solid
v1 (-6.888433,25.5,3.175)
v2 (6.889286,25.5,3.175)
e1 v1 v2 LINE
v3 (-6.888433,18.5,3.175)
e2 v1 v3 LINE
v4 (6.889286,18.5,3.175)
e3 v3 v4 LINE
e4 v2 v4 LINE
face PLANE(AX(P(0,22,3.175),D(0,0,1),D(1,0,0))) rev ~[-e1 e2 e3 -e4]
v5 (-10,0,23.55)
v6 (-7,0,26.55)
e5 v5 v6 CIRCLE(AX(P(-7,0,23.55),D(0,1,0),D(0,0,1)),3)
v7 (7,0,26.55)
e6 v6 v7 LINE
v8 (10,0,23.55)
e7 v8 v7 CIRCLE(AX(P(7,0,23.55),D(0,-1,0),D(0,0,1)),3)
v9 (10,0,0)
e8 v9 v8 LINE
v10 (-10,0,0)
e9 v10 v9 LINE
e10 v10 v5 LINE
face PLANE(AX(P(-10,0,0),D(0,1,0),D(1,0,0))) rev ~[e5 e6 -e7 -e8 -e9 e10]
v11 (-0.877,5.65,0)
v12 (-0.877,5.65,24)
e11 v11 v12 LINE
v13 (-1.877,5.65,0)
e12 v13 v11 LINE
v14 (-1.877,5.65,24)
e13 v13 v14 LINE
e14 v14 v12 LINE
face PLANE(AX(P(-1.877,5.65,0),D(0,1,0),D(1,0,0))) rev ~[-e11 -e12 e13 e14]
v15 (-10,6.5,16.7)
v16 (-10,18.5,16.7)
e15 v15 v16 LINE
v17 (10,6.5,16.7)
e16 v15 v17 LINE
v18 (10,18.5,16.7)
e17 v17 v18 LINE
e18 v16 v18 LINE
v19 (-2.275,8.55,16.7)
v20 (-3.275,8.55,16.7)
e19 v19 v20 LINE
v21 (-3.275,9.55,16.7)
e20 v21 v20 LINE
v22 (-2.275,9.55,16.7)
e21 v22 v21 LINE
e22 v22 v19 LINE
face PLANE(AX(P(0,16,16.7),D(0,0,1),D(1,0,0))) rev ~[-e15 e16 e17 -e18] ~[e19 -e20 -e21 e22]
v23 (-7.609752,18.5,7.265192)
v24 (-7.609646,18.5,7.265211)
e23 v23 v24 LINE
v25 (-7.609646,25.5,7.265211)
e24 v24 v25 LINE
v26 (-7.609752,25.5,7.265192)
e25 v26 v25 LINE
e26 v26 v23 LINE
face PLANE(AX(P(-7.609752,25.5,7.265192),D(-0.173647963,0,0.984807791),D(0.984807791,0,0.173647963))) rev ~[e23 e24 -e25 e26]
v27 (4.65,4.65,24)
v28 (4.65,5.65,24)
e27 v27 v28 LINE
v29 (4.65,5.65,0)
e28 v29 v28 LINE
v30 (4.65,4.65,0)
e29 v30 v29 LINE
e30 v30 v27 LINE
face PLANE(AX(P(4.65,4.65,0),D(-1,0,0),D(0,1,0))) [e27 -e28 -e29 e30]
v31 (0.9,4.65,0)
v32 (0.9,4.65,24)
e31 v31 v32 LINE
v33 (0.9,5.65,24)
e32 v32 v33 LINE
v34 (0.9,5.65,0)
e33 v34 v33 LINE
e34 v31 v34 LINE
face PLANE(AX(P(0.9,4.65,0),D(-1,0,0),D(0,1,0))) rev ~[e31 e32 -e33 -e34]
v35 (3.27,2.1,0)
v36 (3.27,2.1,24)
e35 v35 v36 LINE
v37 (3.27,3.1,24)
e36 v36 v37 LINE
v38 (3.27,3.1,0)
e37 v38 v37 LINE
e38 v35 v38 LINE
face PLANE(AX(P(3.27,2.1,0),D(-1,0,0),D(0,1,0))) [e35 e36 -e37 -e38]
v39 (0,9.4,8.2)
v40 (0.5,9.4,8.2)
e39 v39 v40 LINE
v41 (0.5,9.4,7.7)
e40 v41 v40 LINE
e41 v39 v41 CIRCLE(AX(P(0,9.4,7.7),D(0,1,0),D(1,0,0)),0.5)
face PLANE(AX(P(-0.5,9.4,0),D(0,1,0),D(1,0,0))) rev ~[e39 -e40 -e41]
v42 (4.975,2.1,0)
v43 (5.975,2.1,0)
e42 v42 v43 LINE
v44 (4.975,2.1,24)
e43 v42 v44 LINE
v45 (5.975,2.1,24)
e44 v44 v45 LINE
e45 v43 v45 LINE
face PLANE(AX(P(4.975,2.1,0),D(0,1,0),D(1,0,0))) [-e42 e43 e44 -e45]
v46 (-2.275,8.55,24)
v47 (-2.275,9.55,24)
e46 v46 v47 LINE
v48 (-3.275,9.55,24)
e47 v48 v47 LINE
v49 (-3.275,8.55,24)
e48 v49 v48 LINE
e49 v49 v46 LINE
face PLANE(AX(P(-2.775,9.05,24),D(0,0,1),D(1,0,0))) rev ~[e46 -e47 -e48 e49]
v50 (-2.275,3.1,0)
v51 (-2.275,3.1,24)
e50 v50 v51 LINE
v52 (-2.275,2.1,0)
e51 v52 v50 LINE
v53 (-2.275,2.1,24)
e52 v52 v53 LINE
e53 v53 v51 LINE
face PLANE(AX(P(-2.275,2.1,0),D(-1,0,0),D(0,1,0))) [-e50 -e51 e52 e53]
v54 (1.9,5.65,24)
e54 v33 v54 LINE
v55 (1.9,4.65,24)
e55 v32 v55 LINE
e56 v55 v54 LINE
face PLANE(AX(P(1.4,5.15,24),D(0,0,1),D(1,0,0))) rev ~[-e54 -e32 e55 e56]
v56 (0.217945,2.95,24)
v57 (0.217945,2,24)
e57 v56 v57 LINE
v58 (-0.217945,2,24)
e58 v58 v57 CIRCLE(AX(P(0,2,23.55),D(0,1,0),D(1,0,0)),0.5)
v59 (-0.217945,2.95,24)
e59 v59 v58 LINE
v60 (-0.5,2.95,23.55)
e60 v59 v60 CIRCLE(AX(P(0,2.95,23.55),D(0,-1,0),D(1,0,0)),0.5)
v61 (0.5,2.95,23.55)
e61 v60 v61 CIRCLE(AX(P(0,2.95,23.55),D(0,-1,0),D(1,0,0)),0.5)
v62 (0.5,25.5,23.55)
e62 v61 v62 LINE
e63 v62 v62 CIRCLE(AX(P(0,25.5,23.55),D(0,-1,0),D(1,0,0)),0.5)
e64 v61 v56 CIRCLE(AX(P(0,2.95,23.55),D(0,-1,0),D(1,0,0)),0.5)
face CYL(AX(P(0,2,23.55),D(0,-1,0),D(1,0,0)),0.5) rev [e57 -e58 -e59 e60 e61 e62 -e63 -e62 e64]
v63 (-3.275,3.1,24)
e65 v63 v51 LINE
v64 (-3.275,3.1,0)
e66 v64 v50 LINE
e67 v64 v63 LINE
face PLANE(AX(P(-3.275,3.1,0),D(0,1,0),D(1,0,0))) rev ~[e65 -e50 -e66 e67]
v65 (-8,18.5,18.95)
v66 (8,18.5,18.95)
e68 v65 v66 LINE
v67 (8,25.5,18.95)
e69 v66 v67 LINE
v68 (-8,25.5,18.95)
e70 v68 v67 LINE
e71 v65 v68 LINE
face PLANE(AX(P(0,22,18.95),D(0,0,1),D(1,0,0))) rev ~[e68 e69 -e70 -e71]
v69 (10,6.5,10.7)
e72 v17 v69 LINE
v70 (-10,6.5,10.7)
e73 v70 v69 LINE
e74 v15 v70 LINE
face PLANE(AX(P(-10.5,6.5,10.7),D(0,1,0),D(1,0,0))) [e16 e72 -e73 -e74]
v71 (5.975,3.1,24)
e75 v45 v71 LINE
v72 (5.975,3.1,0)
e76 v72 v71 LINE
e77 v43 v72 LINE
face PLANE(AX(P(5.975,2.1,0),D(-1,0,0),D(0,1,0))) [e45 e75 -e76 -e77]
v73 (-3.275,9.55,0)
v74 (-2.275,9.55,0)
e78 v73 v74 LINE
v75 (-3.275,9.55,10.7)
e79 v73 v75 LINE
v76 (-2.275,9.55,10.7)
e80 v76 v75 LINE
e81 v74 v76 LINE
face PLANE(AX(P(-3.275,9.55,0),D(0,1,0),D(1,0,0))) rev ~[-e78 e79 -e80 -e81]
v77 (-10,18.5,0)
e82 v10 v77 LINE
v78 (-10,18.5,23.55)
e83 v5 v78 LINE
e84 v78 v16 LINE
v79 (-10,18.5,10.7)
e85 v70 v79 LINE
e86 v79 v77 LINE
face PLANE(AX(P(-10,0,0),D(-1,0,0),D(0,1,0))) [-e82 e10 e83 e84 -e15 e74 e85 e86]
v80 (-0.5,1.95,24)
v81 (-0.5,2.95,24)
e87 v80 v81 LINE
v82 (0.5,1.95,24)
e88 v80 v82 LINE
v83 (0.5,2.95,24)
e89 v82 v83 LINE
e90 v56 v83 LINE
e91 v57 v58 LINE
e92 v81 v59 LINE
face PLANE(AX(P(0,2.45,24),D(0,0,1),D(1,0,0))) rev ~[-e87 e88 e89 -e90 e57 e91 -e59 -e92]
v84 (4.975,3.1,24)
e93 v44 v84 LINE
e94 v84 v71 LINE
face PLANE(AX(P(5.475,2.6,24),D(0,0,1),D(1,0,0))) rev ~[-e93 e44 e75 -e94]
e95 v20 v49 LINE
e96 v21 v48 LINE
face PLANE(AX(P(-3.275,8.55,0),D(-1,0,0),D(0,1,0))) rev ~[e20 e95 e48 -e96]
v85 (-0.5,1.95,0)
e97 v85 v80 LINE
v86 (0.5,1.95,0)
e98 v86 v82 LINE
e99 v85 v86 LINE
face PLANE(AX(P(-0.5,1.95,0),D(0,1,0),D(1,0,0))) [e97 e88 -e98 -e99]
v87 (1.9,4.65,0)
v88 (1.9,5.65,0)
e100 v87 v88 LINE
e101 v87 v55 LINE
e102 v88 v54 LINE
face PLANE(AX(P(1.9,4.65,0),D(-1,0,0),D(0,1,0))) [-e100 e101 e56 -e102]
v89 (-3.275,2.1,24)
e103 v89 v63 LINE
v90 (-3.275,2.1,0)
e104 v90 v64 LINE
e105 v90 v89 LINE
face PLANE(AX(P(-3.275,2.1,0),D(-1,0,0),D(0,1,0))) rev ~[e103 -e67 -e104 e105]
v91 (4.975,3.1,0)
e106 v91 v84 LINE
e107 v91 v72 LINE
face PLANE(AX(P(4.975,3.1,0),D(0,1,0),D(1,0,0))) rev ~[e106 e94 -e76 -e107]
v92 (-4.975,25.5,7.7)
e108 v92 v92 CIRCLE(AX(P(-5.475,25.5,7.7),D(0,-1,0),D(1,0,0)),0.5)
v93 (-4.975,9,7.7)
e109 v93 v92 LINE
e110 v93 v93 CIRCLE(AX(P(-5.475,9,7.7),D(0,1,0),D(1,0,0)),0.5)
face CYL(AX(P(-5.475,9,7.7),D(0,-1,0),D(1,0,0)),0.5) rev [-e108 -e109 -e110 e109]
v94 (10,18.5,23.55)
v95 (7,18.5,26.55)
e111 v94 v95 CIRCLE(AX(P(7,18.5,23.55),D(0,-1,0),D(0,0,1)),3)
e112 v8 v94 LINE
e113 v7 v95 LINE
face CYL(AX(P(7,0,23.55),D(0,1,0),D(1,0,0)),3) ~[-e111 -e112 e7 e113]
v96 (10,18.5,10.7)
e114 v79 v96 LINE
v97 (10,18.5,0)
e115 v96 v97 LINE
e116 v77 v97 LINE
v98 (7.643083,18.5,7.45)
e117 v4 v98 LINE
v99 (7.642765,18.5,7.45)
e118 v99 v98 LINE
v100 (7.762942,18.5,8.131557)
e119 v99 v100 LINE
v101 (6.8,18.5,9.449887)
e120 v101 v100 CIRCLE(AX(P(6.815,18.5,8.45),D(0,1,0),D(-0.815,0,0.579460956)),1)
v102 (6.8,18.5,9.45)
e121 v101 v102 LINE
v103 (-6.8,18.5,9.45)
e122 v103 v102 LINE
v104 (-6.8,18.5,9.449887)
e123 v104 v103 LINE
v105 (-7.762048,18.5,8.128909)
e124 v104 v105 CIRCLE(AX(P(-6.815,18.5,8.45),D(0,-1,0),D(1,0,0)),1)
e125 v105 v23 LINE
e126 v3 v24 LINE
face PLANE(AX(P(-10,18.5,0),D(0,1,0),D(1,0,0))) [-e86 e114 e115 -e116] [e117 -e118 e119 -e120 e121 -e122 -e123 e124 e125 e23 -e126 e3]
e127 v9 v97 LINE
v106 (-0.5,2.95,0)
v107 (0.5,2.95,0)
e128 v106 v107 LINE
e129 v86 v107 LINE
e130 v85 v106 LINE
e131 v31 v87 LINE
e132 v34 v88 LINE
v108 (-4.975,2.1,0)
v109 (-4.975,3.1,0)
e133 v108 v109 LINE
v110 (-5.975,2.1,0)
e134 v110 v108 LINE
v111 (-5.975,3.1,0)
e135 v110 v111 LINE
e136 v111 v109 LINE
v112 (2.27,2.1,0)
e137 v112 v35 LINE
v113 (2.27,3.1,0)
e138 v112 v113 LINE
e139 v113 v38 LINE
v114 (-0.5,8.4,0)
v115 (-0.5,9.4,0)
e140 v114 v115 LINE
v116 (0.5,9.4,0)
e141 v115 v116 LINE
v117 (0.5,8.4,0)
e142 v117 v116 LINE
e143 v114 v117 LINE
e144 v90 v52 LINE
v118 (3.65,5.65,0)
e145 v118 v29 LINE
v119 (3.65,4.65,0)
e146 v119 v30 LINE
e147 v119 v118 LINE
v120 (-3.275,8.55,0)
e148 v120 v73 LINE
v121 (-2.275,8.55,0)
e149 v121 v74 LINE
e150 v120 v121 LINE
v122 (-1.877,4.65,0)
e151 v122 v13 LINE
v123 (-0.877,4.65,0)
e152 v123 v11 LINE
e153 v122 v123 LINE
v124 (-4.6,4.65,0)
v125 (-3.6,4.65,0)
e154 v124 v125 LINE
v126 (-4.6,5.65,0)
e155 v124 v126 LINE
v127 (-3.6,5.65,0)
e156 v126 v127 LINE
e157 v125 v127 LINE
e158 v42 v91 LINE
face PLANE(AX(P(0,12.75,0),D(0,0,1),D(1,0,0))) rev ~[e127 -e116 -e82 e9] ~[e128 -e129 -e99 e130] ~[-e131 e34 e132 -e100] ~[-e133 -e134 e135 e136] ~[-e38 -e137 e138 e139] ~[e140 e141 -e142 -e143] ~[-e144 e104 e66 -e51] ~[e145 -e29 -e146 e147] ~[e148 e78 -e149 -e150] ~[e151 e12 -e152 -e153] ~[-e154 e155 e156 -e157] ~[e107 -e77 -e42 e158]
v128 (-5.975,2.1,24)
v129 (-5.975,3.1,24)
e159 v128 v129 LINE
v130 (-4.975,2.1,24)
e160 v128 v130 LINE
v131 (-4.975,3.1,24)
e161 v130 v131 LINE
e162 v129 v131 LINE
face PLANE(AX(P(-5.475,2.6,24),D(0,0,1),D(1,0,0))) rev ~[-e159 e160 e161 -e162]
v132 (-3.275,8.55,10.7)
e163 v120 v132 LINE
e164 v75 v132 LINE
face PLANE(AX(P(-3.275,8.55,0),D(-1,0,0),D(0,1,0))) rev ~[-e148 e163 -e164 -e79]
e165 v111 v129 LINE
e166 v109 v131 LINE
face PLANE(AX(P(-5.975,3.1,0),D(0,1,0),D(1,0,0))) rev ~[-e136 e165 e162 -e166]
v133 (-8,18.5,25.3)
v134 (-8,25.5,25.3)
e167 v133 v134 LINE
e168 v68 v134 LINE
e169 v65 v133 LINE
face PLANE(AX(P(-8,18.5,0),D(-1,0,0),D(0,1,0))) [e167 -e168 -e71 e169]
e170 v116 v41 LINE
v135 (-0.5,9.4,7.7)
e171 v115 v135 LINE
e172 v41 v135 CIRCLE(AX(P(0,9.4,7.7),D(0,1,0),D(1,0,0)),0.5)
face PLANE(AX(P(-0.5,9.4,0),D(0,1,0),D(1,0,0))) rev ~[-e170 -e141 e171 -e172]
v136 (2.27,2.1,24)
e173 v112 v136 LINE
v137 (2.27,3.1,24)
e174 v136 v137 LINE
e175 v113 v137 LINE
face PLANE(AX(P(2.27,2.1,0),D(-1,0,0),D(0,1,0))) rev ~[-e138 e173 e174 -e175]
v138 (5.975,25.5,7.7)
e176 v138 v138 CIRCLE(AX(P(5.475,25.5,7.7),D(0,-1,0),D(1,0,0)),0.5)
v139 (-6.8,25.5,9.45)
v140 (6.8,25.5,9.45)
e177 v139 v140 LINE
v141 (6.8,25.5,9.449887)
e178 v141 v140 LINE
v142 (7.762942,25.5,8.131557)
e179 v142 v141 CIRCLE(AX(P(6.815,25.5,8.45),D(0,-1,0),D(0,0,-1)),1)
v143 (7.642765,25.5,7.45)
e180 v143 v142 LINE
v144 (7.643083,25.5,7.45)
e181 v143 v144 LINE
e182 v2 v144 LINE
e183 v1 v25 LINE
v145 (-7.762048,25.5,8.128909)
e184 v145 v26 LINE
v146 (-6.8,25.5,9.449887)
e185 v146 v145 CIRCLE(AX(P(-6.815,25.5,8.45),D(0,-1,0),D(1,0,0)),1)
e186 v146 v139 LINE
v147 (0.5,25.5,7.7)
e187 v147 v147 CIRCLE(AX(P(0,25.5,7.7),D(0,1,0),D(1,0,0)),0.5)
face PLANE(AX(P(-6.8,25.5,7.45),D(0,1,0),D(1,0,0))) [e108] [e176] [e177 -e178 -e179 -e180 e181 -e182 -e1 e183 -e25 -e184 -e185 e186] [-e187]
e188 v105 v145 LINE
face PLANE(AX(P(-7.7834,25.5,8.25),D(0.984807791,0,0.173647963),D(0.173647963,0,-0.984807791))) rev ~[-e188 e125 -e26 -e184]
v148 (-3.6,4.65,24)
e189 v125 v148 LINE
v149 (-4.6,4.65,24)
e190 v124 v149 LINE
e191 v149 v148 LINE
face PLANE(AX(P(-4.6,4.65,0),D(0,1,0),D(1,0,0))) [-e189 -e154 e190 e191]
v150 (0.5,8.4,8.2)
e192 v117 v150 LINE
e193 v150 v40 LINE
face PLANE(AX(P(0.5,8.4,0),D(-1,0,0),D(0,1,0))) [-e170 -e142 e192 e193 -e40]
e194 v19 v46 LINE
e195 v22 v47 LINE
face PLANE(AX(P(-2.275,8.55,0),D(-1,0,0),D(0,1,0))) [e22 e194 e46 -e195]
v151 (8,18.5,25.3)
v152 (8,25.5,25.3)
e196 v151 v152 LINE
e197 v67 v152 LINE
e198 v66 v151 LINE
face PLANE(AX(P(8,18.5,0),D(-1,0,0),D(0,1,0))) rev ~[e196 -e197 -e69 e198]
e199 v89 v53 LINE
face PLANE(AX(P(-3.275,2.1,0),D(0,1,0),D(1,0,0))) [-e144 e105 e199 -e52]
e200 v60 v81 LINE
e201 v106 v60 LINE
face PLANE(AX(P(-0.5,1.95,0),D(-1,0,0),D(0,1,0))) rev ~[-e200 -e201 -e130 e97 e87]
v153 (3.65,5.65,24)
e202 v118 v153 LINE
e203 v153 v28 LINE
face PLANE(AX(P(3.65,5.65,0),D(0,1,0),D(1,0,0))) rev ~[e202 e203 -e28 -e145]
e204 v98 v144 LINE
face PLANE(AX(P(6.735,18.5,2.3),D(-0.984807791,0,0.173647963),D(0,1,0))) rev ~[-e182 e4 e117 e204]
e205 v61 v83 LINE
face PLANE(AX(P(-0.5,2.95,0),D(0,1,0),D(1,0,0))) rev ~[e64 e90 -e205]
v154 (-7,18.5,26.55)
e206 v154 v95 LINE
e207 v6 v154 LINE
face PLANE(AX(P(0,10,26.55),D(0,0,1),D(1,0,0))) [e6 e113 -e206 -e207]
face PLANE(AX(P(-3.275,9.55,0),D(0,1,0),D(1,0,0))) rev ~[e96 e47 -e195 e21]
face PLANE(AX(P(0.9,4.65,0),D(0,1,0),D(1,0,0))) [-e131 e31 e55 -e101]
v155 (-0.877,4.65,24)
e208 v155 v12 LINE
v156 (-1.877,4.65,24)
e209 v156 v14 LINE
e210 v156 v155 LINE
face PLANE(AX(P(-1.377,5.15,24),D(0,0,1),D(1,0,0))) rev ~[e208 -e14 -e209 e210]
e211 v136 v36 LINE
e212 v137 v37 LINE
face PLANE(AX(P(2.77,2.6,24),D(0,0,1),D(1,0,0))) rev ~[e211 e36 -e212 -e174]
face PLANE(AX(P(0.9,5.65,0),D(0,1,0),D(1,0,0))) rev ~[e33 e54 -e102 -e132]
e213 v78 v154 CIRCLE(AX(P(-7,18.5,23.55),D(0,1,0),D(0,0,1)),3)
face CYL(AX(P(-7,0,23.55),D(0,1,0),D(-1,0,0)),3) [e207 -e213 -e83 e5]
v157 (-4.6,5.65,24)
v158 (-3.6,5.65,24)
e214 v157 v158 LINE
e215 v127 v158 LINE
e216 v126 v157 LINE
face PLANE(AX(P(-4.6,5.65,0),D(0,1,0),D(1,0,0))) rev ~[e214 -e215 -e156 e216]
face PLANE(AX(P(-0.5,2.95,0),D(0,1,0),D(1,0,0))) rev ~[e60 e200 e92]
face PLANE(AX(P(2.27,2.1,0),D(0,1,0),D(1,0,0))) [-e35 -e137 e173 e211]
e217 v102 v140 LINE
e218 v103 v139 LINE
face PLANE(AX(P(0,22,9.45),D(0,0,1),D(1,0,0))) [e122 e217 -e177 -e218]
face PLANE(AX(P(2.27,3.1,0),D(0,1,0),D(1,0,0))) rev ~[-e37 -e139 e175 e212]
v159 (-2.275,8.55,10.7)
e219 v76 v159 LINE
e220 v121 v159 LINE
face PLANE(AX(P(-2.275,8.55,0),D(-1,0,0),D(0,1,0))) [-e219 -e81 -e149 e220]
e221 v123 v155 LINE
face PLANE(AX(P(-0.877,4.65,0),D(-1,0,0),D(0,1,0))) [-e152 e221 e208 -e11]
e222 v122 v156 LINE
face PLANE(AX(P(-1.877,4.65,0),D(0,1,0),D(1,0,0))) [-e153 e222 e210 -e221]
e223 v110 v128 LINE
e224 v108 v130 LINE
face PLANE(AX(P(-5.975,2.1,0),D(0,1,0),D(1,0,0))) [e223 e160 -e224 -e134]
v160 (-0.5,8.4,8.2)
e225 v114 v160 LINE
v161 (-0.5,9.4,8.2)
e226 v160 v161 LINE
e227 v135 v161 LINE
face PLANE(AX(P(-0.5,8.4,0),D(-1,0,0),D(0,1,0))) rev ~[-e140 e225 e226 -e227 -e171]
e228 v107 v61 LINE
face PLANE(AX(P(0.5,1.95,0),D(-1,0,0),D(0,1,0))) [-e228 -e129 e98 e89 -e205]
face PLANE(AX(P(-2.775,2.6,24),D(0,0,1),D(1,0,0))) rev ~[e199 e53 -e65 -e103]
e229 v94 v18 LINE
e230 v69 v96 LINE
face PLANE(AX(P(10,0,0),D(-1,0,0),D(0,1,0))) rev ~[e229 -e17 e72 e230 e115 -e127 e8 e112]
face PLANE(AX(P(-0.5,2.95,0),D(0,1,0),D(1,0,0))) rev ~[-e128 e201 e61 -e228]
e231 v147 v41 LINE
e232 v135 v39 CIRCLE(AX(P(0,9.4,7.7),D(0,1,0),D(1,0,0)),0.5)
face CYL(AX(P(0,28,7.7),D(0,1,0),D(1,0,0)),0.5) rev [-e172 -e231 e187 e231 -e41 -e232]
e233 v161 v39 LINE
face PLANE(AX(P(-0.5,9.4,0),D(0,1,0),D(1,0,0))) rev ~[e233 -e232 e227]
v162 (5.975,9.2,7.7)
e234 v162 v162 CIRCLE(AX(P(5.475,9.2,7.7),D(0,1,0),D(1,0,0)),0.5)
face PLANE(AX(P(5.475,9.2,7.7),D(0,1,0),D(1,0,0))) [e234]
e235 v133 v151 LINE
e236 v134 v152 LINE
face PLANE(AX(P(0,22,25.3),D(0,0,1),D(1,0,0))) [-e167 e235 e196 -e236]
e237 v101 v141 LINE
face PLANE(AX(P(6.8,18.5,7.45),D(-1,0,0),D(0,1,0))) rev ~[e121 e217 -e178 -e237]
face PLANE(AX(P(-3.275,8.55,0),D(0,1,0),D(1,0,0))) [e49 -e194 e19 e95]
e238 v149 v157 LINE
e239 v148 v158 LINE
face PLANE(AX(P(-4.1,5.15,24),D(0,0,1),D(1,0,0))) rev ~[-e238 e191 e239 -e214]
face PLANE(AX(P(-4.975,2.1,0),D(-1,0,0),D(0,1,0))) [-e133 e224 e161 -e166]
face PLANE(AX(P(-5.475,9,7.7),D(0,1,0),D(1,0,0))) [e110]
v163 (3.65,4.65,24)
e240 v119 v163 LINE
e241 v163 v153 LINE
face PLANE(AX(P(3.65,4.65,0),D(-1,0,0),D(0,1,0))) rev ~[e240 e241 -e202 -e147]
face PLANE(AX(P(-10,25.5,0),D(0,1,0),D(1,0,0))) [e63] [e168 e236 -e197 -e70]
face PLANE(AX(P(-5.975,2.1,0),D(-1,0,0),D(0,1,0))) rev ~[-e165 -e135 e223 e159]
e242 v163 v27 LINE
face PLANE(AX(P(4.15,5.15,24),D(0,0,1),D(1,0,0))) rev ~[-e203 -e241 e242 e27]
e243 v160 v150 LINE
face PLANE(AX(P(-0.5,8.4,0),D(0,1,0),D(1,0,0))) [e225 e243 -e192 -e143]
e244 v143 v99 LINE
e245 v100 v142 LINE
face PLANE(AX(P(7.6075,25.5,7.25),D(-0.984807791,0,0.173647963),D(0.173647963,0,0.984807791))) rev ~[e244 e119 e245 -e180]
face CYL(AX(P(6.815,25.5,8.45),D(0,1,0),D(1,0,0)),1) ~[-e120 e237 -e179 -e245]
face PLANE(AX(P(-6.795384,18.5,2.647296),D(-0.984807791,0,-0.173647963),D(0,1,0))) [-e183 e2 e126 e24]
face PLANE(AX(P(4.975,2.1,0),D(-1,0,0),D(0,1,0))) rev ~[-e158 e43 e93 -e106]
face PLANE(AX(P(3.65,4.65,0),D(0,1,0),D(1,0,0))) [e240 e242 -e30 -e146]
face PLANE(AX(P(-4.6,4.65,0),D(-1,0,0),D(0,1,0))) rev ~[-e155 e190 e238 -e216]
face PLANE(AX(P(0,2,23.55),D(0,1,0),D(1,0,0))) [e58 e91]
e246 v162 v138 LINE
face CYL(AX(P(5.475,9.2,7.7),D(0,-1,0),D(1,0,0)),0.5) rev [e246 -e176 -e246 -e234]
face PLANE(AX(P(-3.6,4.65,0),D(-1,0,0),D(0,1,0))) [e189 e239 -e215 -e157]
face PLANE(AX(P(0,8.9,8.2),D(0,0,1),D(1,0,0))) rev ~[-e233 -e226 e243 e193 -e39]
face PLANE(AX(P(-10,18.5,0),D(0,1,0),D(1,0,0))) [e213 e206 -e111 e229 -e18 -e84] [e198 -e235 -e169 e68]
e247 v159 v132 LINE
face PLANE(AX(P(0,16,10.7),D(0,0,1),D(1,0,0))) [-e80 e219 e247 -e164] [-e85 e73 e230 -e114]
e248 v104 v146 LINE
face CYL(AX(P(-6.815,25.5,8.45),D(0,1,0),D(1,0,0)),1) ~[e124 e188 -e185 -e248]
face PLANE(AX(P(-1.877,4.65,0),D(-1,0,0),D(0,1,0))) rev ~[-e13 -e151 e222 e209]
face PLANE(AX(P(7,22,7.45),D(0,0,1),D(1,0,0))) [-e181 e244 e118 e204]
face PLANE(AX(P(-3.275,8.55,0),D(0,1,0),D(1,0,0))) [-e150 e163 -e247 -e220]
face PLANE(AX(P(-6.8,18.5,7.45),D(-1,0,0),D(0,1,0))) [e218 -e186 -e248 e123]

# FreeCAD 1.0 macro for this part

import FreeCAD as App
import Part
import Sketcher
from FreeCAD import Vector
Q = App.Units.Quantity


def edges_at(feature, points):
    """Names of the edges that pass closest to the given points."""
    edges = feature.Shape.Edges
    near = lambda p: min(range(len(edges)), key=lambda i: edges[i].distToShape(Part.Vertex(*p))[0])
    return sorted({f"Edge{near(p) + 1}" for p in points})


def add_polygon(sketch, points):
    """Adds a closed chain of lines whose ends are joined by coincident constraints."""
    first, n = sketch.GeometryCount, len(points)
    for a, b in zip(points, points[1:] + points[:1]):
        sketch.addGeometry(Part.LineSegment(App.Vector(*a, 0), App.Vector(*b, 0)), False)
    for i in range(n):
        sketch.addConstraint(Sketcher.Constraint("Coincident", first + i, 2, first + (i + 1) % n, 1))

doc = App.newDocument("Part")
body = doc.addObject("PartDesign::Body", "Body")

sketch1 = body.newObject("Sketcher::SketchObject", "Sketch")
sketch1.AttachmentSupport = (doc.getObject("XY_Plane"), [""])
sketch1.MapMode = "FlatFace"
add_polygon(sketch1, [(-10, 25.5), (-10, 0), (10, 0), (10, 25.5)])
sketch1.addConstraint([
    Sketcher.Constraint("Vertical", 0),
    Sketcher.Constraint("Horizontal", 1),
    Sketcher.Constraint("Vertical", 2),
    Sketcher.Constraint("Horizontal", 3),
    Sketcher.Constraint("Symmetric", 0, 2, 1, 2, -1, 1),
    Sketcher.Constraint("DistanceX", 1, 1, 1, 2, Q("20 mm")),
    Sketcher.Constraint("DistanceY", 0, 2, 0, 1, Q("25.5 mm")),
])
pad1 = body.newObject("PartDesign::Pad", "Pad")
pad1.Profile = sketch1
pad1.Length = 28.42

sketch2 = body.newObject("Sketcher::SketchObject", "Sketch001")
sketch2.AttachmentSupport = (doc.getObject("XY_Plane"), [""])
sketch2.MapMode = "FlatFace"
add_polygon(sketch2, [(-10, 25.5), (-10, 18.5), (-8, 18.5), (-8, 25.5)])
sketch2.addConstraint([
    Sketcher.Constraint("Vertical", 0),
    Sketcher.Constraint("Horizontal", 1),
    Sketcher.Constraint("Vertical", 2),
    Sketcher.Constraint("Horizontal", 3),
    Sketcher.Constraint("DistanceX", 1, 1, 1, 2, Q("2 mm")),
    Sketcher.Constraint("DistanceY", 0, 2, 0, 1, Q("7 mm")),
    Sketcher.Constraint("DistanceX", 0, 2, -1, 1, Q("10 mm")),
    Sketcher.Constraint("DistanceY", -1, 1, 0, 2, Q("18.5 mm")),
])
pocket1 = body.newObject("PartDesign::Pocket", "Pocket")
pocket1.Profile = sketch2
pocket1.Length = 31.5
pocket1.Reversed = True

sketch3 = body.newObject("Sketcher::SketchObject", "Sketch002")
sketch3.AttachmentSupport = (doc.getObject("XY_Plane"), [""])
sketch3.MapMode = "FlatFace"
add_polygon(sketch3, [(8, 26), (8, 18.5), (10, 18.5), (10, 26)])
sketch3.addConstraint([
    Sketcher.Constraint("Vertical", 0),
    Sketcher.Constraint("Horizontal", 1),
    Sketcher.Constraint("Vertical", 2),
    Sketcher.Constraint("Horizontal", 3),
    Sketcher.Constraint("DistanceX", 1, 1, 1, 2, Q("2 mm")),
    Sketcher.Constraint("DistanceY", 0, 2, 0, 1, Q("7.5 mm")),
    Sketcher.Constraint("DistanceX", -1, 1, 0, 2, Q("8 mm")),
    Sketcher.Constraint("DistanceY", -1, 1, 2, 2, Q("26 mm")),
])
pocket2 = body.newObject("PartDesign::Pocket", "Pocket001")
pocket2.Profile = sketch3
pocket2.Length = 31
pocket2.Reversed = True

sketch4 = body.newObject("Sketcher::SketchObject", "Sketch003")
sketch4.AttachmentSupport = (doc.getObject("XY_Plane"), [""])
sketch4.MapMode = "FlatFace"
sketch4.AttachmentOffset = App.Placement(Vector(0, 0, 10.7), App.Rotation())
add_polygon(sketch4, [(-10.5, 25.5), (-10.5, 6.5), (10.5, 6.5), (10.5, 25.5)])
sketch4.addConstraint([
    Sketcher.Constraint("Vertical", 0),
    Sketcher.Constraint("Horizontal", 1),
    Sketcher.Constraint("Vertical", 2),
    Sketcher.Constraint("Horizontal", 3),
    Sketcher.Constraint("DistanceX", 1, 1, 1, 2, Q("21 mm")),
    Sketcher.Constraint("DistanceY", 0, 2, 0, 1, Q("19 mm")),
    Sketcher.Constraint("DistanceX", 0, 2, -1, 1, Q("10.5 mm")),
    Sketcher.Constraint("DistanceY", -1, 1, 0, 2, Q("6.5 mm")),
])
pocket3 = body.newObject("PartDesign::Pocket", "Pocket002")
pocket3.Profile = sketch4
pocket3.Length = 6
pocket3.Reversed = True

sketch5 = body.newObject("Sketcher::SketchObject", "Sketch004")
sketch5.AttachmentSupport = (doc.getObject("XY_Plane"), [""])
sketch5.MapMode = "FlatFace"
sketch5.AttachmentOffset = App.Placement(Vector(0, 0, 9.45), App.Rotation())
add_polygon(sketch5, [(-9, 25.5), (-9, 18.5), (9, 18.5), (9, 25.5)])
sketch5.addConstraint([
    Sketcher.Constraint("Vertical", 0),
    Sketcher.Constraint("Horizontal", 1),
    Sketcher.Constraint("Vertical", 2),
    Sketcher.Constraint("Horizontal", 3),
    Sketcher.Constraint("DistanceX", 1, 1, 1, 2, Q("18 mm")),
    Sketcher.Constraint("DistanceY", 0, 2, 0, 1, Q("7 mm")),
    Sketcher.Constraint("DistanceX", 0, 2, -1, 1, Q("9 mm")),
    Sketcher.Constraint("DistanceY", -1, 1, 0, 2, Q("18.5 mm")),
])
pocket4 = body.newObject("PartDesign::Pocket", "Pocket003")
pocket4.Profile = sketch5
pocket4.Length = 9.5
pocket4.Reversed = True

sketch6 = body.newObject("Sketcher::SketchObject", "Sketch005")
sketch6.AttachmentSupport = (doc.getObject("XY_Plane"), [""])
sketch6.MapMode = "FlatFace"
add_polygon(sketch6, [(-11, 25.5), (-11, 18.5), (11, 18.5), (11, 25.5)])
sketch6.addConstraint([
    Sketcher.Constraint("Vertical", 0),
    Sketcher.Constraint("Horizontal", 1),
    Sketcher.Constraint("Vertical", 2),
    Sketcher.Constraint("Horizontal", 3),
    Sketcher.Constraint("DistanceX", 1, 1, 1, 2, Q("22 mm")),
    Sketcher.Constraint("DistanceY", 0, 2, 0, 1, Q("7 mm")),
    Sketcher.Constraint("DistanceX", 0, 2, -1, 1, Q("11 mm")),
    Sketcher.Constraint("DistanceY", -1, 1, 0, 2, Q("18.5 mm")),
])
pocket5 = body.newObject("PartDesign::Pocket", "Pocket004")
pocket5.Profile = sketch6
pocket5.Length = 3.175
pocket5.Reversed = True

sketch7 = body.newObject("Sketcher::SketchObject", "Sketch006")
sketch7.AttachmentSupport = (doc.getObject("XY_Plane"), [""])
sketch7.MapMode = "FlatFace"
sketch7.AttachmentOffset = App.Placement(Vector(0, 0, 25.3), App.Rotation())
add_polygon(sketch7, [(-11.5, 25.5), (-11.5, 18.5), (11.5, 18.5), (11.5, 25.5)])
sketch7.addConstraint([
    Sketcher.Constraint("Vertical", 0),
    Sketcher.Constraint("Horizontal", 1),
    Sketcher.Constraint("Vertical", 2),
    Sketcher.Constraint("Horizontal", 3),
    Sketcher.Constraint("DistanceX", 1, 1, 1, 2, Q("23 mm")),
    Sketcher.Constraint("DistanceY", 0, 2, 0, 1, Q("7 mm")),
    Sketcher.Constraint("DistanceX", 0, 2, -1, 1, Q("11.5 mm")),
    Sketcher.Constraint("DistanceY", -1, 1, 0, 2, Q("18.5 mm")),
])
pocket6 = body.newObject("PartDesign::Pocket", "Pocket005")
pocket6.Profile = sketch7
pocket6.Length = 3.2
pocket6.Reversed = True

sketch8 = body.newObject("Sketcher::SketchObject", "Sketch007")
sketch8.AttachmentSupport = (doc.getObject("XY_Plane"), [""])
sketch8.MapMode = "FlatFace"
add_polygon(sketch8, [(-0.5, 2.95), (-0.5, 1.95), (0.5, 1.95), (0.5, 2.95)])
sketch8.addConstraint([
    Sketcher.Constraint("Vertical", 0),
    Sketcher.Constraint("Horizontal", 1),
    Sketcher.Constraint("Vertical", 2),
    Sketcher.Constraint("Horizontal", 3),
    Sketcher.Constraint("Equal", 3, 0),
    Sketcher.Constraint("DistanceX", 1, 1, 1, 2, Q("1 mm")),
    Sketcher.Constraint("DistanceX", 0, 2, -1, 1, Q("0.5 mm")),
    Sketcher.Constraint("DistanceY", -1, 1, 0, 2, Q("1.95 mm")),
])
pocket7 = body.newObject("PartDesign::Pocket", "Pocket006")
pocket7.Profile = sketch8
pocket7.Length = 24
pocket7.Reversed = True

sketch9 = body.newObject("Sketcher::SketchObject", "Sketch008")
sketch9.AttachmentSupport = (doc.getObject("XY_Plane"), [""])
sketch9.MapMode = "FlatFace"
add_polygon(sketch9, [(2.27, 3.1), (2.27, 2.1), (3.27, 2.1), (3.27, 3.1)])
sketch9.addConstraint([
    Sketcher.Constraint("Vertical", 0),
    Sketcher.Constraint("Horizontal", 1),
    Sketcher.Constraint("Vertical", 2),
    Sketcher.Constraint("Horizontal", 3),
    Sketcher.Constraint("Equal", 3, 0),
    Sketcher.Constraint("DistanceX", 1, 1, 1, 2, Q("1 mm")),
    Sketcher.Constraint("DistanceY", -1, 1, 0, 2, Q("2.1 mm")),
    Sketcher.Constraint("DistanceX", -1, 1, 0, 2, Q("2.27 mm")),
])
pocket8 = body.newObject("PartDesign::Pocket", "Pocket007")
pocket8.Profile = sketch9
pocket8.Length = 24
pocket8.Reversed = True

sketch10 = body.newObject("Sketcher::SketchObject", "Sketch009")
sketch10.AttachmentSupport = (doc.getObject("XY_Plane"), [""])
sketch10.MapMode = "FlatFace"
sketch10.AttachmentOffset = App.Placement(Vector(0, 0, 26.55), App.Rotation())
add_polygon(sketch10, [(-10.5, 20), (-10.5, 0), (10.5, 0), (10.5, 20)])
sketch10.addConstraint([
    Sketcher.Constraint("Vertical", 0),
    Sketcher.Constraint("Horizontal", 1),
    Sketcher.Constraint("Vertical", 2),
    Sketcher.Constraint("Horizontal", 3),
    Sketcher.Constraint("Symmetric", 0, 2, 1, 2, -1, 1),
    Sketcher.Constraint("DistanceX", 1, 1, 1, 2, Q("21 mm")),
    Sketcher.Constraint("DistanceY", 0, 2, 0, 1, Q("20 mm")),
])
pocket9 = body.newObject("PartDesign::Pocket", "Pocket008")
pocket9.Profile = sketch10
pocket9.Length = 3
pocket9.Reversed = True

sketch11 = body.newObject("Sketcher::SketchObject", "Sketch010")
sketch11.AttachmentSupport = (doc.getObject("XY_Plane"), [""])
sketch11.MapMode = "FlatFace"
add_polygon(sketch11, [(-0.5, 9.4), (-0.5, 8.4), (0.5, 8.4), (0.5, 9.4)])
sketch11.addConstraint([
    Sketcher.Constraint("Vertical", 0),
    Sketcher.Constraint("Horizontal", 1),
    Sketcher.Constraint("Vertical", 2),
    Sketcher.Constraint("Horizontal", 3),
    Sketcher.Constraint("Equal", 3, 0),
    Sketcher.Constraint("DistanceX", 1, 1, 1, 2, Q("1 mm")),
    Sketcher.Constraint("DistanceX", 0, 2, -1, 1, Q("0.5 mm")),
    Sketcher.Constraint("DistanceY", -1, 1, 0, 2, Q("8.4 mm")),
])
pocket10 = body.newObject("PartDesign::Pocket", "Pocket009")
pocket10.Profile = sketch11
pocket10.Length = 8.2
pocket10.Reversed = True

sketch12 = body.newObject("Sketcher::SketchObject", "Sketch011")
sketch12.AttachmentSupport = (doc.getObject("XY_Plane"), [""])
sketch12.MapMode = "FlatFace"
add_polygon(sketch12, [(4.975, 3.1), (4.975, 2.1), (5.975, 2.1), (5.975, 3.1)])
sketch12.addConstraint([
    Sketcher.Constraint("Vertical", 0),
    Sketcher.Constraint("Horizontal", 1),
    Sketcher.Constraint("Vertical", 2),
    Sketcher.Constraint("Horizontal", 3),
    Sketcher.Constraint("Equal", 3, 0),
    Sketcher.Constraint("DistanceX", 1, 1, 1, 2, Q("1 mm")),
    Sketcher.Constraint("DistanceY", -1, 1, 0, 2, Q("2.1 mm")),
    Sketcher.Constraint("DistanceX", -1, 1, 0, 2, Q("4.975 mm")),
])
pocket11 = body.newObject("PartDesign::Pocket", "Pocket010")
pocket11.Profile = sketch12
pocket11.Length = 24
pocket11.Reversed = True

sketch13 = body.newObject("Sketcher::SketchObject", "Sketch012")
sketch13.AttachmentSupport = (doc.getObject("XY_Plane"), [""])
sketch13.MapMode = "FlatFace"
add_polygon(sketch13, [(-5.975, 3.1), (-5.975, 2.1), (-4.975, 2.1), (-4.975, 3.1)])
sketch13.addConstraint([
    Sketcher.Constraint("Vertical", 0),
    Sketcher.Constraint("Horizontal", 1),
    Sketcher.Constraint("Vertical", 2),
    Sketcher.Constraint("Horizontal", 3),
    Sketcher.Constraint("Equal", 3, 0),
    Sketcher.Constraint("DistanceX", 1, 1, 1, 2, Q("1 mm")),
    Sketcher.Constraint("DistanceY", -1, 1, 0, 2, Q("2.1 mm")),
    Sketcher.Constraint("DistanceX", 0, 2, -1, 1, Q("5.975 mm")),
])
pocket12 = body.newObject("PartDesign::Pocket", "Pocket011")
pocket12.Profile = sketch13
pocket12.Length = 24
pocket12.Reversed = True

sketch14 = body.newObject("Sketcher::SketchObject", "Sketch013")
sketch14.AttachmentSupport = (doc.getObject("XZ_Plane"), [""])
sketch14.MapMode = "FlatFace"
sketch14.AttachmentOffset = App.Placement(Vector(0, 0, -28), App.Rotation())
sketch14.addGeometry(Part.Circle(Vector(0, 7.7, 0), Vector(0, 0, 1), 0.5), False)
sketch14.addConstraint([
    Sketcher.Constraint("PointOnObject", 0, 3, -2),
    Sketcher.Constraint("Diameter", 0, Q("1 mm")),
    Sketcher.Constraint("DistanceY", -1, 1, 0, 3, Q("7.7 mm")),
])
pocket13 = body.newObject("PartDesign::Pocket", "Pocket012")
pocket13.Profile = sketch14
pocket13.Length = 19
pocket13.Reversed = True

sketch15 = body.newObject("Sketcher::SketchObject", "Sketch014")
sketch15.AttachmentSupport = (doc.getObject("XZ_Plane"), [""])
sketch15.MapMode = "FlatFace"
sketch15.AttachmentOffset = App.Placement(Vector(0, 0, -2), App.Rotation())
sketch15.addGeometry(Part.Circle(Vector(0, 23.55, 0), Vector(0, 0, 1), 0.5), False)
sketch15.addConstraint([
    Sketcher.Constraint("PointOnObject", 0, 3, -2),
    Sketcher.Constraint("Diameter", 0, Q("1 mm")),
    Sketcher.Constraint("DistanceY", -1, 1, 0, 3, Q("23.55 mm")),
])
pocket14 = body.newObject("PartDesign::Pocket", "Pocket013")
pocket14.Profile = sketch15
pocket14.Length = 24

sketch16 = body.newObject("Sketcher::SketchObject", "Sketch015")
sketch16.AttachmentSupport = (doc.getObject("XZ_Plane"), [""])
sketch16.MapMode = "FlatFace"
sketch16.AttachmentOffset = App.Placement(Vector(0, 0, -9.2), App.Rotation())
sketch16.addGeometry(Part.Circle(Vector(5.475, 7.7, 0), Vector(0, 0, 1), 0.5), False)
sketch16.addConstraint([
    Sketcher.Constraint("Diameter", 0, Q("1 mm")),
    Sketcher.Constraint("DistanceY", -1, 1, 0, 3, Q("7.7 mm")),
    Sketcher.Constraint("DistanceX", -1, 1, 0, 3, Q("5.475 mm")),
])
pocket15 = body.newObject("PartDesign::Pocket", "Pocket014")
pocket15.Profile = sketch16
pocket15.Length = 17

sketch17 = body.newObject("Sketcher::SketchObject", "Sketch016")
sketch17.AttachmentSupport = (doc.getObject("XZ_Plane"), [""])
sketch17.MapMode = "FlatFace"
sketch17.AttachmentOffset = App.Placement(Vector(0, 0, -9), App.Rotation())
sketch17.addGeometry(Part.Circle(Vector(-5.475, 7.7, 0), Vector(0, 0, 1), 0.5), False)
sketch17.addConstraint([
    Sketcher.Constraint("Diameter", 0, Q("1 mm")),
    Sketcher.Constraint("DistanceY", -1, 1, 0, 3, Q("7.7 mm")),
    Sketcher.Constraint("DistanceX", 0, 3, -1, 1, Q("5.475 mm")),
])
pocket16 = body.newObject("PartDesign::Pocket", "Pocket015")
pocket16.Profile = sketch17
pocket16.Length = 17

sketch18 = body.newObject("Sketcher::SketchObject", "Sketch017")
sketch18.AttachmentSupport = (doc.getObject("XY_Plane"), [""])
sketch18.MapMode = "FlatFace"
add_polygon(sketch18, [(-3.275, 3.1), (-3.275, 2.1), (-2.275, 2.1), (-2.275, 3.1)])
sketch18.addConstraint([
    Sketcher.Constraint("Vertical", 0),
    Sketcher.Constraint("Horizontal", 1),
    Sketcher.Constraint("Vertical", 2),
    Sketcher.Constraint("Horizontal", 3),
    Sketcher.Constraint("Equal", 3, 0),
    Sketcher.Constraint("DistanceX", 1, 1, 1, 2, Q("1 mm")),
    Sketcher.Constraint("DistanceY", -1, 1, 0, 2, Q("2.1 mm")),
    Sketcher.Constraint("DistanceX", 0, 2, -1, 1, Q("3.275 mm")),
])
pocket17 = body.newObject("PartDesign::Pocket", "Pocket016")
pocket17.Profile = sketch18
pocket17.Length = 24
pocket17.Reversed = True

sketch19 = body.newObject("Sketcher::SketchObject", "Sketch018")
sketch19.AttachmentSupport = (doc.getObject("XY_Plane"), [""])
sketch19.MapMode = "FlatFace"
add_polygon(sketch19, [(-3.275, 9.55), (-3.275, 8.55), (-2.275, 8.55), (-2.275, 9.55)])
sketch19.addConstraint([
    Sketcher.Constraint("Vertical", 0),
    Sketcher.Constraint("Horizontal", 1),
    Sketcher.Constraint("Vertical", 2),
    Sketcher.Constraint("Horizontal", 3),
    Sketcher.Constraint("Equal", 3, 0),
    Sketcher.Constraint("DistanceX", 1, 1, 1, 2, Q("1 mm")),
    Sketcher.Constraint("DistanceY", -1, 1, 0, 2, Q("8.55 mm")),
    Sketcher.Constraint("DistanceX", 0, 2, -1, 1, Q("3.275 mm")),
])
pocket18 = body.newObject("PartDesign::Pocket", "Pocket017")
pocket18.Profile = sketch19
pocket18.Length = 24
pocket18.Reversed = True

sketch20 = body.newObject("Sketcher::SketchObject", "Sketch019")
sketch20.AttachmentSupport = (doc.getObject("XY_Plane"), [""])
sketch20.MapMode = "FlatFace"
add_polygon(sketch20, [(0.9, 5.65), (0.9, 4.65), (1.9, 4.65), (1.9, 5.65)])
sketch20.addConstraint([
    Sketcher.Constraint("Vertical", 0),
    Sketcher.Constraint("Horizontal", 1),
    Sketcher.Constraint("Vertical", 2),
    Sketcher.Constraint("Horizontal", 3),
    Sketcher.Constraint("Equal", 3, 0),
    Sketcher.Constraint("DistanceX", 1, 1, 1, 2, Q("1 mm")),
    Sketcher.Constraint("DistanceX", -1, 1, 0, 2, Q("0.9 mm")),
    Sketcher.Constraint("DistanceY", -1, 1, 0, 2, Q("4.65 mm")),
])
pocket19 = body.newObject("PartDesign::Pocket", "Pocket018")
pocket19.Profile = sketch20
pocket19.Length = 24
pocket19.Reversed = True

sketch21 = body.newObject("Sketcher::SketchObject", "Sketch020")
sketch21.AttachmentSupport = (doc.getObject("XY_Plane"), [""])
sketch21.MapMode = "FlatFace"
add_polygon(sketch21, [(-1.877, 5.65), (-1.877, 4.65), (-0.877, 4.65), (-0.877, 5.65)])
sketch21.addConstraint([
    Sketcher.Constraint("Vertical", 0),
    Sketcher.Constraint("Horizontal", 1),
    Sketcher.Constraint("Vertical", 2),
    Sketcher.Constraint("Horizontal", 3),
    Sketcher.Constraint("Equal", 3, 0),
    Sketcher.Constraint("DistanceX", 1, 1, 1, 2, Q("1 mm")),
    Sketcher.Constraint("DistanceY", -1, 1, 0, 2, Q("4.65 mm")),
    Sketcher.Constraint("DistanceX", 0, 2, -1, 1, Q("1.877 mm")),
])
pocket20 = body.newObject("PartDesign::Pocket", "Pocket019")
pocket20.Profile = sketch21
pocket20.Length = 24
pocket20.Reversed = True

sketch22 = body.newObject("Sketcher::SketchObject", "Sketch021")
sketch22.AttachmentSupport = (doc.getObject("XY_Plane"), [""])
sketch22.MapMode = "FlatFace"
add_polygon(sketch22, [(3.65, 5.65), (3.65, 4.65), (4.65, 4.65), (4.65, 5.65)])
sketch22.addConstraint([
    Sketcher.Constraint("Vertical", 0),
    Sketcher.Constraint("Horizontal", 1),
    Sketcher.Constraint("Vertical", 2),
    Sketcher.Constraint("Horizontal", 3),
    Sketcher.Constraint("Equal", 3, 0),
    Sketcher.Constraint("DistanceX", 1, 1, 1, 2, Q("1 mm")),
    Sketcher.Constraint("DistanceX", -1, 1, 0, 2, Q("3.65 mm")),
    Sketcher.Constraint("DistanceY", -1, 1, 0, 2, Q("4.65 mm")),
])
pocket21 = body.newObject("PartDesign::Pocket", "Pocket020")
pocket21.Profile = sketch22
pocket21.Length = 24
pocket21.Reversed = True

sketch23 = body.newObject("Sketcher::SketchObject", "Sketch022")
sketch23.AttachmentSupport = (doc.getObject("XY_Plane"), [""])
sketch23.MapMode = "FlatFace"
add_polygon(sketch23, [(-4.6, 5.65), (-4.6, 4.65), (-3.6, 4.65), (-3.6, 5.65)])
sketch23.addConstraint([
    Sketcher.Constraint("Vertical", 0),
    Sketcher.Constraint("Horizontal", 1),
    Sketcher.Constraint("Vertical", 2),
    Sketcher.Constraint("Horizontal", 3),
    Sketcher.Constraint("Equal", 3, 0),
    Sketcher.Constraint("DistanceX", 1, 1, 1, 2, Q("1 mm")),
    Sketcher.Constraint("DistanceX", 0, 2, -1, 1, Q("4.6 mm")),
    Sketcher.Constraint("DistanceY", -1, 1, 0, 2, Q("4.65 mm")),
])
pocket22 = body.newObject("PartDesign::Pocket", "Pocket021")
pocket22.Profile = sketch23
pocket22.Length = 24
pocket22.Reversed = True

sketch24 = body.newObject("Sketcher::SketchObject", "Sketch023")
sketch24.Placement = App.Placement(Vector(6.735, 18.5, 2.3), App.Rotation(Vector(0.984807791, 0, -0.173647963), Vector(0, 1, 0), Vector(0.173647963, 0, 0.984807791), "ZXY"))
add_polygon(sketch24, [(0, 8), (0, 0), (2, 0), (2, 8)])
sketch24.addConstraint([
    Sketcher.Constraint("Vertical", 0),
    Sketcher.Constraint("Horizontal", 1),
    Sketcher.Constraint("Vertical", 2),
    Sketcher.Constraint("Horizontal", 3),
    Sketcher.Constraint("Coincident", 0, 2, -1, 1),
    Sketcher.Constraint("DistanceX", 1, 1, 1, 2, Q("2 mm")),
    Sketcher.Constraint("DistanceY", 0, 2, 0, 1, Q("8 mm")),
])
pocket23 = body.newObject("PartDesign::Pocket", "Pocket022")
pocket23.Profile = sketch24
pocket23.Length = 8
pocket23.Reversed = True

sketch25 = body.newObject("Sketcher::SketchObject", "Sketch024")
sketch25.Placement = App.Placement(Vector(-8.765, 18.5, 2.3), App.Rotation(Vector(0.984807791, 0, 0.173647963), Vector(0, 1, 0), Vector(-0.173647963, 0, 0.984807791), "ZXY"))
add_polygon(sketch25, [(0, 8), (0, 0), (2, 0), (2, 8)])
sketch25.addConstraint([
    Sketcher.Constraint("Vertical", 0),
    Sketcher.Constraint("Horizontal", 1),
    Sketcher.Constraint("Vertical", 2),
    Sketcher.Constraint("Horizontal", 3),
    Sketcher.Constraint("Coincident", 0, 2, -1, 1),
    Sketcher.Constraint("DistanceX", 1, 1, 1, 2, Q("2 mm")),
    Sketcher.Constraint("DistanceY", 0, 2, 0, 1, Q("8 mm")),
])
pocket24 = body.newObject("PartDesign::Pocket", "Pocket023")
pocket24.Profile = sketch25
pocket24.Length = 8
pocket24.Reversed = True

sketch26 = body.newObject("Sketcher::SketchObject", "Sketch025")
sketch26.AttachmentSupport = (doc.getObject("XY_Plane"), [""])
sketch26.MapMode = "FlatFace"
sketch26.AttachmentOffset = App.Placement(Vector(0, 0, 7.45), App.Rotation())
add_polygon(sketch26, [(-8, 25.5), (-8, 18.5), (-6, 18.5), (-6, 25.5)])
sketch26.addConstraint([
    Sketcher.Constraint("Vertical", 0),
    Sketcher.Constraint("Horizontal", 1),
    Sketcher.Constraint("Vertical", 2),
    Sketcher.Constraint("Horizontal", 3),
    Sketcher.Constraint("DistanceX", 1, 1, 1, 2, Q("2 mm")),
    Sketcher.Constraint("DistanceY", 0, 2, 0, 1, Q("7 mm")),
    Sketcher.Constraint("DistanceX", 0, 2, -1, 1, Q("8 mm")),
    Sketcher.Constraint("DistanceY", -1, 1, 0, 2, Q("18.5 mm")),
])
pocket25 = body.newObject("PartDesign::Pocket", "Pocket024")
pocket25.Profile = sketch26
pocket25.Length = 2
pocket25.Reversed = True

sketch27 = body.newObject("Sketcher::SketchObject", "Sketch026")
sketch27.AttachmentSupport = (doc.getObject("XY_Plane"), [""])
sketch27.MapMode = "FlatFace"
sketch27.AttachmentOffset = App.Placement(Vector(0, 0, 7.45), App.Rotation())
add_polygon(sketch27, [(6, 25.5), (6, 18.5), (8, 18.5), (8, 25.5)])
sketch27.addConstraint([
    Sketcher.Constraint("Vertical", 0),
    Sketcher.Constraint("Horizontal", 1),
    Sketcher.Constraint("Vertical", 2),
    Sketcher.Constraint("Horizontal", 3),
    Sketcher.Constraint("DistanceX", 1, 1, 1, 2, Q("2 mm")),
    Sketcher.Constraint("DistanceY", 0, 2, 0, 1, Q("7 mm")),
    Sketcher.Constraint("DistanceX", -1, 1, 0, 2, Q("6 mm")),
    Sketcher.Constraint("DistanceY", -1, 1, 0, 2, Q("18.5 mm")),
])
pocket26 = body.newObject("PartDesign::Pocket", "Pocket025")
pocket26.Profile = sketch27
pocket26.Length = 2
pocket26.Reversed = True

sketch28 = body.newObject("Sketcher::SketchObject", "Sketch027")
sketch28.AttachmentSupport = (doc.getObject("XZ_Plane"), [""])
sketch28.MapMode = "FlatFace"
sketch28.AttachmentOffset = App.Placement(Vector(0, 0, -25.5), App.Rotation())
sketch28.addGeometry(Part.Circle(Vector(6.815, 8.45, 0), Vector(0, 0, 1), 1), False)
sketch28.addConstraint([
    Sketcher.Constraint("Diameter", 0, Q("2 mm")),
    Sketcher.Constraint("DistanceY", -1, 1, 0, 3, Q("8.45 mm")),
    Sketcher.Constraint("DistanceX", -1, 1, 0, 3, Q("6.815 mm")),
])
pad2 = body.newObject("PartDesign::Pad", "Pad001")
pad2.Profile = sketch28
pad2.Length = 7

sketch29 = body.newObject("Sketcher::SketchObject", "Sketch028")
sketch29.AttachmentSupport = (doc.getObject("XY_Plane"), [""])
sketch29.MapMode = "FlatFace"
sketch29.AttachmentOffset = App.Placement(Vector(0, 0, 7.45), App.Rotation())
add_polygon(sketch29, [(6, 25.5), (6, 18.5), (6.8, 18.5), (6.8, 25.5)])
sketch29.addConstraint([
    Sketcher.Constraint("Vertical", 0),
    Sketcher.Constraint("Horizontal", 1),
    Sketcher.Constraint("Vertical", 2),
    Sketcher.Constraint("Horizontal", 3),
    Sketcher.Constraint("DistanceY", 0, 2, 0, 1, Q("7 mm")),
    Sketcher.Constraint("DistanceX", 1, 1, 1, 2, Q("0.8 mm")),
    Sketcher.Constraint("DistanceX", -1, 1, 0, 2, Q("6 mm")),
    Sketcher.Constraint("DistanceY", -1, 1, 0, 2, Q("18.5 mm")),
])
pad3 = body.newObject("PartDesign::Pad", "Pad002")
pad3.Profile = sketch29
pad3.Length = 2

sketch30 = body.newObject("Sketcher::SketchObject", "Sketch029")
sketch30.AttachmentSupport = (doc.getObject("XZ_Plane"), [""])
sketch30.MapMode = "FlatFace"
sketch30.AttachmentOffset = App.Placement(Vector(0, 0, -25.5), App.Rotation())
add_polygon(sketch30, [(6.622692, 7.423648), (7.6075, 7.25), (7.781148, 8.234808), (6.79634, 8.408456)])
sketch30.addConstraint([
    Sketcher.Constraint("Perpendicular", 0, 1),
    Sketcher.Constraint("Perpendicular", 1, 2),
    Sketcher.Constraint("Perpendicular", 2, 3),
    Sketcher.Constraint("Equal", 0, 1),
    Sketcher.Constraint("Angle", 0, Q("-9.999988 deg")),
    Sketcher.Constraint("Distance", 0, Q("1 mm")),
    Sketcher.Constraint("DistanceY", -1, 1, 0, 2, Q("7.25 mm")),
    Sketcher.Constraint("DistanceX", -1, 1, 0, 2, Q("7.6075 mm")),
])
pad4 = body.newObject("PartDesign::Pad", "Pad003")
pad4.Profile = sketch30
pad4.Length = 7

sketch31 = body.newObject("Sketcher::SketchObject", "Sketch030")
sketch31.AttachmentSupport = (doc.getObject("XZ_Plane"), [""])
sketch31.MapMode = "FlatFace"
sketch31.AttachmentOffset = App.Placement(Vector(0, 0, -25.5), App.Rotation())
sketch31.addGeometry(Part.Circle(Vector(-6.815, 8.45, 0), Vector(0, 0, 1), 1), False)
sketch31.addConstraint([
    Sketcher.Constraint("Diameter", 0, Q("2 mm")),
    Sketcher.Constraint("DistanceY", -1, 1, 0, 3, Q("8.45 mm")),
    Sketcher.Constraint("DistanceX", 0, 3, -1, 1, Q("6.815 mm")),
])
pad5 = body.newObject("PartDesign::Pad", "Pad004")
pad5.Profile = sketch31
pad5.Length = 7

sketch32 = body.newObject("Sketcher::SketchObject", "Sketch031")
sketch32.AttachmentSupport = (doc.getObject("XY_Plane"), [""])
sketch32.MapMode = "FlatFace"
sketch32.AttachmentOffset = App.Placement(Vector(0, 0, 7.45), App.Rotation())
add_polygon(sketch32, [(-6.8, 25.5), (-6.8, 18.5), (-6, 18.5), (-6, 25.5)])
sketch32.addConstraint([
    Sketcher.Constraint("Vertical", 0),
    Sketcher.Constraint("Horizontal", 1),
    Sketcher.Constraint("Vertical", 2),
    Sketcher.Constraint("Horizontal", 3),
    Sketcher.Constraint("DistanceY", 0, 2, 0, 1, Q("7 mm")),
    Sketcher.Constraint("DistanceX", 1, 1, 1, 2, Q("0.8 mm")),
    Sketcher.Constraint("DistanceX", 1, 2, -1, 1, Q("6 mm")),
    Sketcher.Constraint("DistanceY", -1, 1, 0, 2, Q("18.5 mm")),
])
pad6 = body.newObject("PartDesign::Pad", "Pad005")
pad6.Profile = sketch32
pad6.Length = 2

sketch33 = body.newObject("Sketcher::SketchObject", "Sketch032")
sketch33.AttachmentSupport = (doc.getObject("XZ_Plane"), [""])
sketch33.MapMode = "FlatFace"
sketch33.AttachmentOffset = App.Placement(Vector(0, 0, -25.5), App.Rotation())
add_polygon(sketch33, [(-6.798592, 8.423648), (-7.7834, 8.25), (-7.609752, 7.265192), (-6.624944, 7.43884)])
sketch33.addConstraint([
    Sketcher.Constraint("Perpendicular", 0, 1),
    Sketcher.Constraint("Perpendicular", 1, 2),
    Sketcher.Constraint("Perpendicular", 2, 3),
    Sketcher.Constraint("Equal", 0, 1),
    Sketcher.Constraint("Angle", 0, Q("-170.000012 deg")),
    Sketcher.Constraint("Distance", 0, Q("1 mm")),
    Sketcher.Constraint("DistanceY", -1, 1, 0, 2, Q("8.25 mm")),
    Sketcher.Constraint("DistanceX", 0, 2, -1, 1, Q("7.7834 mm")),
])
pad7 = body.newObject("PartDesign::Pad", "Pad006")
pad7.Profile = sketch33
pad7.Length = 7
doc.recompute()

fillet = body.newObject("PartDesign::Fillet", "Fillet")
fillet.Base = (pad7, edges_at(pad7, [(10, 9.25, 26.55), (-10, 9.25, 26.55)]))
fillet.Radius = 3

doc.recompute()
